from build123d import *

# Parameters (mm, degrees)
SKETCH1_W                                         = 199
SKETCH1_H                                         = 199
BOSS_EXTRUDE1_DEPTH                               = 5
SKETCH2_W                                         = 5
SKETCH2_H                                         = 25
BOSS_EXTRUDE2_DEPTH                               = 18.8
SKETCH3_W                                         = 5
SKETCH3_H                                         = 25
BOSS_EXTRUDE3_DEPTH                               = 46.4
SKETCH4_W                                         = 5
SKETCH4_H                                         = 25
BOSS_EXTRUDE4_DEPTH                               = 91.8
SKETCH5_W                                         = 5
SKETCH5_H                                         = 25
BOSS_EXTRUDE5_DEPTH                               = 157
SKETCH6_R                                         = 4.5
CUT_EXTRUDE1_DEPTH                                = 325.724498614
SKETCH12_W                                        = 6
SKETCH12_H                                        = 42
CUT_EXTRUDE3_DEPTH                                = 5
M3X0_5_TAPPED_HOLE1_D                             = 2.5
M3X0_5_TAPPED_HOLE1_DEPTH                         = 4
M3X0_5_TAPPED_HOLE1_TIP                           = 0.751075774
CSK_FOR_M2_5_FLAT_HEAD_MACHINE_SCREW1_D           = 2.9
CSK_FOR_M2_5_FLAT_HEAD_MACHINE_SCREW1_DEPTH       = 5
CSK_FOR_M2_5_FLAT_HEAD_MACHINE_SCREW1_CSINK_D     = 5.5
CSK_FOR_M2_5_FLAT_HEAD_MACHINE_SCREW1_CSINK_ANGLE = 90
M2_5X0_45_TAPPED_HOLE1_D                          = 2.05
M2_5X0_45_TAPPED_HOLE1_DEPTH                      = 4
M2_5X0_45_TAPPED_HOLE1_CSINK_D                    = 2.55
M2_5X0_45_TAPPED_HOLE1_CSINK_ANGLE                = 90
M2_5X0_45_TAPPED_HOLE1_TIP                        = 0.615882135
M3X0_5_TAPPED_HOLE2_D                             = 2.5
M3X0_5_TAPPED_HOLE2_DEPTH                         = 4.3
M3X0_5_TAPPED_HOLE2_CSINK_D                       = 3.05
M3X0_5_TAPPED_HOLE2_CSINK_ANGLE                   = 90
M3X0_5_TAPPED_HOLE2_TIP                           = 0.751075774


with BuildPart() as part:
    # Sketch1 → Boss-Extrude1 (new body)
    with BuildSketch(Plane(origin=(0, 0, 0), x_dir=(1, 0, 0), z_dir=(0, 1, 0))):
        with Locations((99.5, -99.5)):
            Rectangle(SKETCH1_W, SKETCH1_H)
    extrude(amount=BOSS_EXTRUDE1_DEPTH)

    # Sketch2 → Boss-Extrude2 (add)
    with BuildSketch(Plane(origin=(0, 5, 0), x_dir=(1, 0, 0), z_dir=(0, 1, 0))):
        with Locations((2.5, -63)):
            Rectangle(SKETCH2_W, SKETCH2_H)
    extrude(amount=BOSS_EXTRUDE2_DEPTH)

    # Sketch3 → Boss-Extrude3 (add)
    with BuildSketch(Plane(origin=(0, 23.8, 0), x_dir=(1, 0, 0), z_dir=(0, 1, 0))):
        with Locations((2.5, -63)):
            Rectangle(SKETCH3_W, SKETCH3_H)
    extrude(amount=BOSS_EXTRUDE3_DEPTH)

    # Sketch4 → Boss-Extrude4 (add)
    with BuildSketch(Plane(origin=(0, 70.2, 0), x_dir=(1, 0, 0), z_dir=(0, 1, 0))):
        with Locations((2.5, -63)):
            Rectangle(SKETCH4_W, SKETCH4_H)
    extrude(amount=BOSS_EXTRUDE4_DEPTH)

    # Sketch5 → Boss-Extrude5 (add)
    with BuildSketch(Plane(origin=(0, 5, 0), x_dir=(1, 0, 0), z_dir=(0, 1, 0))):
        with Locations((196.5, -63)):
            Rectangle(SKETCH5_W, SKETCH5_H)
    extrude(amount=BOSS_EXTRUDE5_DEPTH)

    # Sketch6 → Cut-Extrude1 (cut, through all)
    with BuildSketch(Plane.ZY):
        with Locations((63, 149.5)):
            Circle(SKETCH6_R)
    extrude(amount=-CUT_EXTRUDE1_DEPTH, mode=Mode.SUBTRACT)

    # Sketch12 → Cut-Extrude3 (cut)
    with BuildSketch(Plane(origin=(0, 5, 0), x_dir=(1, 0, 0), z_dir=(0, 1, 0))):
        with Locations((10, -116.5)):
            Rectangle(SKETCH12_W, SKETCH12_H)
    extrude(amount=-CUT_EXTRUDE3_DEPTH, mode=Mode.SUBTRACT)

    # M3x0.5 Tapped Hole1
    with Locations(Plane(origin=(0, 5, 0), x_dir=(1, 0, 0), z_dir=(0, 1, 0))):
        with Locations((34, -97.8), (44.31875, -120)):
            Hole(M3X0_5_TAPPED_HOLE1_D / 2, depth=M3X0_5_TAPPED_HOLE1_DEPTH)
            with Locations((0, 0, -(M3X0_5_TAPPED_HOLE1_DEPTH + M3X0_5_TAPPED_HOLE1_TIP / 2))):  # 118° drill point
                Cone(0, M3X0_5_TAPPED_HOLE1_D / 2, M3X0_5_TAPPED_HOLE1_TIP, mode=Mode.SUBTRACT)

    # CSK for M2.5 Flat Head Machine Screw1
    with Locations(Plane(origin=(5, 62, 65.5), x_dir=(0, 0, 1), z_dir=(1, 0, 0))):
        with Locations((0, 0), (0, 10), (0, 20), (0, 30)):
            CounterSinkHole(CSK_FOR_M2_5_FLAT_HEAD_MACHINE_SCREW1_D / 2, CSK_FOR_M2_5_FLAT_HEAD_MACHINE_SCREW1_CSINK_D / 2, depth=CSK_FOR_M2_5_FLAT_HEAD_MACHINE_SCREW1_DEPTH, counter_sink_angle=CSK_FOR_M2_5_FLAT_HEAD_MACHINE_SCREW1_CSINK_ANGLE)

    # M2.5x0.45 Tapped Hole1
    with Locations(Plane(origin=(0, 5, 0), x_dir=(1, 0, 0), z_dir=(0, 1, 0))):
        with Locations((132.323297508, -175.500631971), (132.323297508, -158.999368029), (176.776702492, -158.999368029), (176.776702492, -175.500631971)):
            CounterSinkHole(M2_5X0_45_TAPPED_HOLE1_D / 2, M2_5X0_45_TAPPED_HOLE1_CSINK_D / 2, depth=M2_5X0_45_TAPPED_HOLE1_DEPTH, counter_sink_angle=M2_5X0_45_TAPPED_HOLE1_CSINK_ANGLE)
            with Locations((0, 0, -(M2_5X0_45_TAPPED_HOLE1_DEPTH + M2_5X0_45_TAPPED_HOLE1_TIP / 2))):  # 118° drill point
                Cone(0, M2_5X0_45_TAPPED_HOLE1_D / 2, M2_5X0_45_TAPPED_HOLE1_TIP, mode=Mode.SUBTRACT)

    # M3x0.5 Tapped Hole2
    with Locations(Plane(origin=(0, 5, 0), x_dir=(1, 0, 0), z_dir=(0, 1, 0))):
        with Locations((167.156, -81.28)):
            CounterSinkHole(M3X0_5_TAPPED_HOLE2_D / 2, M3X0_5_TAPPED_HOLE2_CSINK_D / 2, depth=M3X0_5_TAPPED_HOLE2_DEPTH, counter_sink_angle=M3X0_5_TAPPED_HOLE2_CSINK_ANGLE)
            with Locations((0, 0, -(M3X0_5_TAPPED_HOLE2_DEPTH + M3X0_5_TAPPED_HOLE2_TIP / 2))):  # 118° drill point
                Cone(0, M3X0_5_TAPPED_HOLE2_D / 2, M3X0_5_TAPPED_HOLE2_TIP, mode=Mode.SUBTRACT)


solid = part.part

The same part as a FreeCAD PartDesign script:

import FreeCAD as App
import Part
import Sketcher
from FreeCAD import Vector


def add_polygon(sketch, points):
    """Adds a closed chain of lines whose ends are joined by coincident constraints."""
    first, n = sketch.GeometryCount, len(points)
    for a, b in zip(points, points[1:] + points[:1]):
        sketch.addGeometry(Part.LineSegment(App.Vector(*a, 0), App.Vector(*b, 0)), False)
    for i in range(n):
        sketch.addConstraint(Sketcher.Constraint("Coincident", first + i, 2, first + (i + 1) % n, 1))

doc = App.newDocument("Part")
body = doc.addObject("PartDesign::Body", "Body")

# Sketch on XZ plane
sketch1 = body.newObject("Sketcher::SketchObject", "Sketch")
sketch1.AttachmentSupport = (doc.getObject("XZ_Plane"), [""])
sketch1.MapMode = "FlatFace"
add_polygon(sketch1, [(0, 0), (0, 199), (199, 199), (199, 0)])  # lines 0-3
sketch1.addConstraint(Sketcher.Constraint("Vertical", 0))
sketch1.addConstraint(Sketcher.Constraint("Horizontal", 1))
sketch1.addConstraint(Sketcher.Constraint("Vertical", 2))
sketch1.addConstraint(Sketcher.Constraint("Horizontal", 3))
sketch1.addConstraint(Sketcher.Constraint("Coincident", 3, 2, -1, 1))
sketch1.addConstraint(Sketcher.Constraint("Equal", 3, 0))
sketch1.addConstraint(Sketcher.Constraint("DistanceX", 1, 1, 1, 2, 199.0))
pad1 = body.newObject("PartDesign::Pad", "Pad")
pad1.Profile = sketch1
pad1.Length = 5
pad1.Reversed = True

# Sketch on XZ plane
sketch2 = body.newObject("Sketcher::SketchObject", "Sketch001")
sketch2.AttachmentSupport = (doc.getObject("XZ_Plane"), [""])
sketch2.MapMode = "FlatFace"
sketch2.AttachmentOffset = App.Placement(Vector(0, 0, -5), App.Rotation())
add_polygon(sketch2, [(0, 50.5), (0, 75.5), (5, 75.5), (5, 50.5)])  # lines 0-3
sketch2.addConstraint(Sketcher.Constraint("Vertical", 0))
sketch2.addConstraint(Sketcher.Constraint("Horizontal", 1))
sketch2.addConstraint(Sketcher.Constraint("Vertical", 2))
sketch2.addConstraint(Sketcher.Constraint("Horizontal", 3))
sketch2.addConstraint(Sketcher.Constraint("PointOnObject", 0, 2, -2))
sketch2.addConstraint(Sketcher.Constraint("DistanceX", 1, 1, 1, 2, 5.0))
sketch2.addConstraint(Sketcher.Constraint("DistanceY", 0, 1, 0, 2, 25.0))
sketch2.addConstraint(Sketcher.Constraint("DistanceY", -1, 1, 0, 2, 75.5))
pad2 = body.newObject("PartDesign::Pad", "Pad001")
pad2.Profile = sketch2
pad2.Length = 18.8
pad2.Reversed = True

# Sketch on XZ plane
sketch3 = body.newObject("Sketcher::SketchObject", "Sketch002")
sketch3.AttachmentSupport = (doc.getObject("XZ_Plane"), [""])
sketch3.MapMode = "FlatFace"
sketch3.AttachmentOffset = App.Placement(Vector(0, 0, -23.8), App.Rotation())
add_polygon(sketch3, [(0, 50.5), (0, 75.5), (5, 75.5), (5, 50.5)])  # lines 0-3
sketch3.addConstraint(Sketcher.Constraint("Vertical", 0))
sketch3.addConstraint(Sketcher.Constraint("Horizontal", 1))
sketch3.addConstraint(Sketcher.Constraint("Vertical", 2))
sketch3.addConstraint(Sketcher.Constraint("Horizontal", 3))
sketch3.addConstraint(Sketcher.Constraint("PointOnObject", 0, 2, -2))
sketch3.addConstraint(Sketcher.Constraint("DistanceX", 1, 1, 1, 2, 5.0))
sketch3.addConstraint(Sketcher.Constraint("DistanceY", 0, 1, 0, 2, 25.0))
sketch3.addConstraint(Sketcher.Constraint("DistanceY", -1, 1, 0, 2, 75.5))
pad3 = body.newObject("PartDesign::Pad", "Pad002")
pad3.Profile = sketch3
pad3.Length = 46.4
pad3.Reversed = True

# Sketch on XZ plane
sketch4 = body.newObject("Sketcher::SketchObject", "Sketch003")
sketch4.AttachmentSupport = (doc.getObject("XZ_Plane"), [""])
sketch4.MapMode = "FlatFace"
sketch4.AttachmentOffset = App.Placement(Vector(0, 0, -70.2), App.Rotation())
add_polygon(sketch4, [(0, 50.5), (0, 75.5), (5, 75.5), (5, 50.5)])  # lines 0-3
sketch4.addConstraint(Sketcher.Constraint("Vertical", 0))
sketch4.addConstraint(Sketcher.Constraint("Horizontal", 1))
sketch4.addConstraint(Sketcher.Constraint("Vertical", 2))
sketch4.addConstraint(Sketcher.Constraint("Horizontal", 3))
sketch4.addConstraint(Sketcher.Constraint("PointOnObject", 0, 2, -2))
sketch4.addConstraint(Sketcher.Constraint("DistanceX", 1, 1, 1, 2, 5.0))
sketch4.addConstraint(Sketcher.Constraint("DistanceY", 0, 1, 0, 2, 25.0))
sketch4.addConstraint(Sketcher.Constraint("DistanceY", -1, 1, 0, 2, 75.5))
pad4 = body.newObject("PartDesign::Pad", "Pad003")
pad4.Profile = sketch4
pad4.Length = 91.8
pad4.Reversed = True

# Sketch on XZ plane
sketch5 = body.newObject("Sketcher::SketchObject", "Sketch004")
sketch5.AttachmentSupport = (doc.getObject("XZ_Plane"), [""])
sketch5.MapMode = "FlatFace"
sketch5.AttachmentOffset = App.Placement(Vector(0, 0, -5), App.Rotation())
add_polygon(sketch5, [(194, 50.5), (194, 75.5), (199, 75.5), (199, 50.5)])  # lines 0-3
sketch5.addConstraint(Sketcher.Constraint("Vertical", 0))
sketch5.addConstraint(Sketcher.Constraint("Horizontal", 1))
sketch5.addConstraint(Sketcher.Constraint("Vertical", 2))
sketch5.addConstraint(Sketcher.Constraint("Horizontal", 3))
sketch5.addConstraint(Sketcher.Constraint("DistanceX", 1, 1, 1, 2, 5.0))
sketch5.addConstraint(Sketcher.Constraint("DistanceY", 0, 1, 0, 2, 25.0))
sketch5.addConstraint(Sketcher.Constraint("DistanceX", -1, 1, 0, 2, 194.0))
sketch5.addConstraint(Sketcher.Constraint("DistanceY", -1, 1, 0, 2, 75.5))
pad5 = body.newObject("PartDesign::Pad", "Pad004")
pad5.Profile = sketch5
pad5.Length = 157
pad5.Reversed = True

# Sketch on YZ plane
sketch6 = body.newObject("Sketcher::SketchObject", "Sketch005")
sketch6.AttachmentSupport = (doc.getObject("YZ_Plane"), [""])
sketch6.MapMode = "FlatFace"
sketch6.addGeometry(Part.Circle(Vector(149.5, 63, 0), Vector(0, 0, 1), 4.5), False)
sketch6.addConstraint(Sketcher.Constraint("Diameter", 0, 9.0))
sketch6.addConstraint(Sketcher.Constraint("DistanceY", -1, 1, 0, 3, 63.0))
sketch6.addConstraint(Sketcher.Constraint("DistanceX", -1, 1, 0, 3, 149.5))
pocket1 = body.newObject("PartDesign::Pocket", "Pocket")
pocket1.Profile = sketch6
pocket1.Type = "ThroughAll"
pocket1.Reversed = True

# Sketch on XZ plane
sketch7 = body.newObject("Sketcher::SketchObject", "Sketch006")
sketch7.AttachmentSupport = (doc.getObject("XZ_Plane"), [""])
sketch7.MapMode = "FlatFace"
sketch7.AttachmentOffset = App.Placement(Vector(0, 0, -5), App.Rotation())
add_polygon(sketch7, [(7, 95.5), (7, 137.5), (13, 137.5), (13, 95.5)])  # lines 0-3
sketch7.addConstraint(Sketcher.Constraint("Vertical", 0))
sketch7.addConstraint(Sketcher.Constraint("Horizontal", 1))
sketch7.addConstraint(Sketcher.Constraint("Vertical", 2))
sketch7.addConstraint(Sketcher.Constraint("Horizontal", 3))
sketch7.addConstraint(Sketcher.Constraint("DistanceX", 1, 1, 1, 2, 6.0))
sketch7.addConstraint(Sketcher.Constraint("DistanceY", 0, 1, 0, 2, 42.0))
sketch7.addConstraint(Sketcher.Constraint("DistanceX", -1, 1, 0, 2, 7.0))
sketch7.addConstraint(Sketcher.Constraint("DistanceY", -1, 1, 0, 2, 137.5))
pocket2 = body.newObject("PartDesign::Pocket", "Pocket001")
pocket2.Profile = sketch7
pocket2.Length = 5
pocket2.Reversed = True

# Sketch on XZ plane
sketch8 = body.newObject("Sketcher::SketchObject", "Sketch007")
sketch8.AttachmentSupport = (doc.getObject("XZ_Plane"), [""])
sketch8.MapMode = "FlatFace"
sketch8.AttachmentOffset = App.Placement(Vector(0, 0, -5), App.Rotation())
sketch8.addGeometry(Part.Circle(Vector(34, 97.8, 0), Vector(0, 0, 1), 1.25), False)
sketch8.addGeometry(Part.Circle(Vector(44.31875, 120, 0), Vector(0, 0, 1), 1.25), False)
sketch8.addConstraint(Sketcher.Constraint("Equal", 0, 1))
sketch8.addConstraint(Sketcher.Constraint("Diameter", 0, 2.5))
sketch8.addConstraint(Sketcher.Constraint("DistanceX", -1, 1, 0, 3, 34.0))
sketch8.addConstraint(Sketcher.Constraint("DistanceY", -1, 1, 1, 3, 120.0))
sketch8.addConstraint(Sketcher.Constraint("DistanceY", -1, 1, 0, 3, 97.8))
sketch8.addConstraint(Sketcher.Constraint("DistanceX", -1, 1, 1, 3, 44.31875))
doc.recompute()
hole = body.newObject("PartDesign::Hole", "Hole")
hole.Profile = sketch8
hole.ThreadType = "None"
hole.Diameter = 2.5
hole.DepthType = "Dimension"
hole.Depth = 4
hole.DrillPoint = "Angled"
hole.DrillPointAngle = 118
hole.Reversed = True

# Sketch on YZ plane
sketch9 = body.newObject("Sketcher::SketchObject", "Sketch008")
sketch9.AttachmentSupport = (doc.getObject("YZ_Plane"), [""])
sketch9.MapMode = "FlatFace"
sketch9.AttachmentOffset = App.Placement(Vector(0, 0, 5), App.Rotation())
sketch9.addGeometry(Part.Circle(Vector(62, 65.5, 0), Vector(0, 0, 1), 1.45), False)
sketch9.addGeometry(Part.Circle(Vector(52, 65.5, 0), Vector(0, 0, 1), 1.45), False)
sketch9.addGeometry(Part.Circle(Vector(42, 65.5, 0), Vector(0, 0, 1), 1.45), False)
sketch9.addGeometry(Part.Circle(Vector(32, 65.5, 0), Vector(0, 0, 1), 1.45), False)
sketch9.addConstraint(Sketcher.Constraint("Equal", 0, 1))
sketch9.addConstraint(Sketcher.Constraint("Equal", 1, 2))
sketch9.addConstraint(Sketcher.Constraint("Equal", 2, 3))
sketch9.addConstraint(Sketcher.Constraint("Horizontal", 0, 3, 1, 3))
sketch9.addConstraint(Sketcher.Constraint("Horizontal", 1, 3, 2, 3))
sketch9.addConstraint(Sketcher.Constraint("Horizontal", 2, 3, 3, 3))
sketch9.addConstraint(Sketcher.Constraint("Diameter", 0, 2.9))
sketch9.addConstraint(Sketcher.Constraint("DistanceX", -1, 1, 0, 3, 62.0))
sketch9.addConstraint(Sketcher.Constraint("DistanceX", -1, 1, 1, 3, 52.0))
sketch9.addConstraint(Sketcher.Constraint("DistanceX", -1, 1, 2, 3, 42.0))
sketch9.addConstraint(Sketcher.Constraint("DistanceX", -1, 1, 3, 3, 32.0))
sketch9.addConstraint(Sketcher.Constraint("DistanceY", -1, 1, 0, 3, 65.5))
doc.recompute()
hole2 = body.newObject("PartDesign::Hole", "Hole001")
hole2.Profile = sketch9
hole2.ThreadType = "None"
hole2.Diameter = 2.9
hole2.DepthType = "Dimension"
hole2.Depth = 5
hole2.DrillPoint = "Flat"
hole2.HoleCutType = "Countersink"
hole2.HoleCutDiameter = 5.5
hole2.HoleCutCountersinkAngle = 90

# Sketch on XZ plane
sketch10 = body.newObject("Sketcher::SketchObject", "Sketch009")
sketch10.AttachmentSupport = (doc.getObject("XZ_Plane"), [""])
sketch10.MapMode = "FlatFace"
sketch10.AttachmentOffset = App.Placement(Vector(0, 0, -5), App.Rotation())
sketch10.addGeometry(Part.Circle(Vector(132.323298, 175.500632, 0), Vector(0, 0, 1), 1.025), False)
sketch10.addGeometry(Part.Circle(Vector(132.323298, 158.999368, 0), Vector(0, 0, 1), 1.025), False)
sketch10.addGeometry(Part.Circle(Vector(176.776702, 158.999368, 0), Vector(0, 0, 1), 1.025), False)
sketch10.addGeometry(Part.Circle(Vector(176.776702, 175.500632, 0), Vector(0, 0, 1), 1.025), False)
sketch10.addConstraint(Sketcher.Constraint("Equal", 0, 1))
sketch10.addConstraint(Sketcher.Constraint("Equal", 1, 2))
sketch10.addConstraint(Sketcher.Constraint("Equal", 2, 3))
sketch10.addConstraint(Sketcher.Constraint("Horizontal", 1, 3, 2, 3))
sketch10.addConstraint(Sketcher.Constraint("Horizontal", 0, 3, 3, 3))
sketch10.addConstraint(Sketcher.Constraint("Vertical", 0, 3, 1, 3))
sketch10.addConstraint(Sketcher.Constraint("Vertical", 2, 3, 3, 3))
sketch10.addConstraint(Sketcher.Constraint("Diameter", 0, 2.05))
sketch10.addConstraint(Sketcher.Constraint("DistanceY", -1, 1, 0, 3, 175.500632))
sketch10.addConstraint(Sketcher.Constraint("DistanceY", -1, 1, 1, 3, 158.999368))
sketch10.addConstraint(Sketcher.Constraint("DistanceX", -1, 1, 0, 3, 132.323298))
sketch10.addConstraint(Sketcher.Constraint("DistanceX", -1, 1, 2, 3, 176.776702))
doc.recompute()
hole3 = body.newObject("PartDesign::Hole", "Hole002")
hole3.Profile = sketch10
hole3.ThreadType = "None"
hole3.Diameter = 2.05
hole3.DepthType = "Dimension"
hole3.Depth = 4
hole3.DrillPoint = "Angled"
hole3.DrillPointAngle = 118
hole3.HoleCutType = "Countersink"
hole3.HoleCutDiameter = 2.55
hole3.HoleCutCountersinkAngle = 90
hole3.Reversed = True

# Sketch on XZ plane
sketch11 = body.newObject("Sketcher::SketchObject", "Sketch010")
sketch11.AttachmentSupport = (doc.getObject("XZ_Plane"), [""])
sketch11.MapMode = "FlatFace"
sketch11.AttachmentOffset = App.Placement(Vector(0, 0, -5), App.Rotation())
sketch11.addGeometry(Part.Circle(Vector(167.156, 81.28, 0), Vector(0, 0, 1), 1.25), False)
sketch11.addConstraint(Sketcher.Constraint("Diameter", 0, 2.5))
sketch11.addConstraint(Sketcher.Constraint("DistanceY", -1, 1, 0, 3, 81.28))
sketch11.addConstraint(Sketcher.Constraint("DistanceX", -1, 1, 0, 3, 167.156))
doc.recompute()
hole4 = body.newObject("PartDesign::Hole", "Hole003")
hole4.Profile = sketch11
hole4.ThreadType = "None"
hole4.Diameter = 2.5
hole4.DepthType = "Dimension"
hole4.Depth = 4.3
hole4.DrillPoint = "Angled"
hole4.DrillPointAngle = 118
hole4.HoleCutType = "Countersink"
hole4.HoleCutDiameter = 3.05
hole4.HoleCutCountersinkAngle = 90
hole4.Reversed = True

doc.recompute()
